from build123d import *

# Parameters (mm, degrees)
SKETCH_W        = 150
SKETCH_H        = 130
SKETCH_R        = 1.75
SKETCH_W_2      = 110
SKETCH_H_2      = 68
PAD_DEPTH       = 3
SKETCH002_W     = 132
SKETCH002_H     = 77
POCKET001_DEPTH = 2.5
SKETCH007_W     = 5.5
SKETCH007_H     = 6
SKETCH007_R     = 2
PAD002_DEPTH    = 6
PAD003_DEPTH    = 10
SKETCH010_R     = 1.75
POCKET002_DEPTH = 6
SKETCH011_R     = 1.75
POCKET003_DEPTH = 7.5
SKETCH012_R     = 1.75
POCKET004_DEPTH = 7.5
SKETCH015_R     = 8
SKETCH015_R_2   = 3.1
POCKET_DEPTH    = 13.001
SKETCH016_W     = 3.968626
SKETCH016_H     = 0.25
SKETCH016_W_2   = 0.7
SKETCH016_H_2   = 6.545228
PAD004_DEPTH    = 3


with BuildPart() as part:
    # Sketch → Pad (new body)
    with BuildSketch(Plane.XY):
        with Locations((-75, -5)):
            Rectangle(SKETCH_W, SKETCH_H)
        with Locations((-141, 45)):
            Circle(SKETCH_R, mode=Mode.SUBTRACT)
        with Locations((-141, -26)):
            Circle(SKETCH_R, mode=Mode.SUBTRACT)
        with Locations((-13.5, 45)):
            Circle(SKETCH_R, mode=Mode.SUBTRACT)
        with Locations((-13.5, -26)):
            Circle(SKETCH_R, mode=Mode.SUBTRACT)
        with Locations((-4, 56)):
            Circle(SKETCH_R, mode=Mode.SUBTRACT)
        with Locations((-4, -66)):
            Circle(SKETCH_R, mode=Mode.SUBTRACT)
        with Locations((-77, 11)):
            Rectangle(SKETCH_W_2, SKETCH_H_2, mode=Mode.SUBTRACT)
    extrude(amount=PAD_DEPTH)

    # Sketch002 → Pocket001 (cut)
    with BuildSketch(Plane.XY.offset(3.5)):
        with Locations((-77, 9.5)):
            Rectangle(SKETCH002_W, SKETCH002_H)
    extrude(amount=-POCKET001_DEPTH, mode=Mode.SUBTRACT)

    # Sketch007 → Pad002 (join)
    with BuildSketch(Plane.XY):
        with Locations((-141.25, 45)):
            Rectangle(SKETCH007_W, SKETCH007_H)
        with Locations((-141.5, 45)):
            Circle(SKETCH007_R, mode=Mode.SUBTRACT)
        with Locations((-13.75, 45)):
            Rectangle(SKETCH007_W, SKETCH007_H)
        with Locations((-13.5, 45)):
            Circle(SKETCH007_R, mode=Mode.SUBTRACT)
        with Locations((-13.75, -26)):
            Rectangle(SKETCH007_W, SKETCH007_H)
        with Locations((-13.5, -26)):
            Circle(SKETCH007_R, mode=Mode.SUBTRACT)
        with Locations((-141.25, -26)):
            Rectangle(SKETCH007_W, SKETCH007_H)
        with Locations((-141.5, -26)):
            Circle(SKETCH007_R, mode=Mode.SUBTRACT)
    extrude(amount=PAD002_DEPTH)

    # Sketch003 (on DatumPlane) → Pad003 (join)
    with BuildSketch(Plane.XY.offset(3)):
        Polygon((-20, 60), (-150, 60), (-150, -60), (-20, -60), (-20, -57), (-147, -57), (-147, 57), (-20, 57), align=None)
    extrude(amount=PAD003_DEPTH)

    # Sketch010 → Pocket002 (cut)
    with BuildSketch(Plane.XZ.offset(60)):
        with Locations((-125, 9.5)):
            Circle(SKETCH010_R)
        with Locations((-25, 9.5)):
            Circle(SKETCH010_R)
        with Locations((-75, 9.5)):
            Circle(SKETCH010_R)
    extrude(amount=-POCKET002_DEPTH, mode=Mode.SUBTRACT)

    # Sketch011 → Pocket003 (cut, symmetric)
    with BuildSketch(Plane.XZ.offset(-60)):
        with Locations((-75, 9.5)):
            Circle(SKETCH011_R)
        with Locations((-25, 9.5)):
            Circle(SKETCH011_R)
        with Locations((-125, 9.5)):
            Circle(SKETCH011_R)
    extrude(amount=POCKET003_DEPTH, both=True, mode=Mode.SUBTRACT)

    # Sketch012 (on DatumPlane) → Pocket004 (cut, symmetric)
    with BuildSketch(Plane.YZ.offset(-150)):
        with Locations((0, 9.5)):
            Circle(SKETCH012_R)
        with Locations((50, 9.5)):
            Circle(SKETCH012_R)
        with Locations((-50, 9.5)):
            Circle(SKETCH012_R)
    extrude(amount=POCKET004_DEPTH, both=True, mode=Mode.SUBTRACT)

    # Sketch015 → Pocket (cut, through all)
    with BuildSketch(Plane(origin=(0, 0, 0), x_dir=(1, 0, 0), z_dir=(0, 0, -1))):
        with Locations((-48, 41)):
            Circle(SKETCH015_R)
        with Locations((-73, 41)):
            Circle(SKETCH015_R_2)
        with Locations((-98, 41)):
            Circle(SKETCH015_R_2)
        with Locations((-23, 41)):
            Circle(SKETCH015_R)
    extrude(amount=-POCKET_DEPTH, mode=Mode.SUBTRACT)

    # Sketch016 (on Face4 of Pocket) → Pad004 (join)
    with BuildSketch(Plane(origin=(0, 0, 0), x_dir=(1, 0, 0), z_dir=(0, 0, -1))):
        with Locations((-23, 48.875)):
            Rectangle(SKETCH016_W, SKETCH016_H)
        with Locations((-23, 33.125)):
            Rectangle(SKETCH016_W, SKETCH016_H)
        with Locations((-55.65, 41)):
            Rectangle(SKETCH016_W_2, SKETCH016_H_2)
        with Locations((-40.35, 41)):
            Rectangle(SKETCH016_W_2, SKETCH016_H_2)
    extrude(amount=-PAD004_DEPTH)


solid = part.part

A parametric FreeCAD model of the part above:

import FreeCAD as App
import Part
import Sketcher

V = App.Vector

doc = App.newDocument("Part")
body = doc.addObject("PartDesign::Body", "Body")

# Sketch on XY plane
sketch1 = doc.addObject("Sketcher::SketchObject", "Sketch")
body.addObject(sketch1)
sketch1.AttachmentSupport = (doc.XY_Plane, [""])
sketch1.MapMode = "FlatFace"
sketch1.addGeometry([
    Part.LineSegment(V(-150, 60, 0), V(-150, -70, 0)),  # 0
    Part.LineSegment(V(-150, -70, 0), V(0, -70, 0)),  # 1
    Part.LineSegment(V(0, -70, 0), V(0, 60, 0)),  # 2
    Part.LineSegment(V(0, 60, 0), V(-150, 60, 0)),  # 3
    Part.Circle(V(-141, -26, 0), V(0, 0, 1), 1.8),  # 4
    Part.Circle(V(-4, -66, 0), V(0, 0, 1), 1.8),  # 5
    Part.Circle(V(-13.5, -26, 0), V(0, 0, 1), 1.8),  # 6
    Part.LineSegment(V(-22, -23, 0), V(-132, -23, 0)),  # 7
    Part.LineSegment(V(-132, -23, 0), V(-132, 45, 0)),  # 8
    Part.LineSegment(V(-132, 45, 0), V(-22, 45, 0)),  # 9
    Part.LineSegment(V(-22, 45, 0), V(-22, -23, 0)),  # 10
    Part.Circle(V(-141, 45, 0), V(0, 0, 1), 1.8),  # 11
    Part.Circle(V(-13.5, 45, 0), V(0, 0, 1), 1.8),  # 12
    Part.Circle(V(-4, 56, 0), V(0, 0, 1), 1.8),  # 13
], False)
sketch1.addConstraint([
    Sketcher.Constraint("Coincident", 0, 2, 1, 1),
    Sketcher.Constraint("Coincident", 1, 2, 2, 1),
    Sketcher.Constraint("Coincident", 2, 2, 3, 1),
    Sketcher.Constraint("Coincident", 3, 2, 0, 1),
    Sketcher.Constraint("Coincident", 7, 2, 8, 1),
    Sketcher.Constraint("Coincident", 8, 2, 9, 1),
    Sketcher.Constraint("Coincident", 9, 2, 10, 1),
    Sketcher.Constraint("Coincident", 10, 2, 7, 1),
    Sketcher.Constraint("Vertical", 0),
    Sketcher.Constraint("Horizontal", 1),
    Sketcher.Constraint("Vertical", 2),
    Sketcher.Constraint("Horizontal", 3),
    Sketcher.Constraint("Horizontal", 7),
    Sketcher.Constraint("Vertical", 8),
    Sketcher.Constraint("Horizontal", 9),
    Sketcher.Constraint("Vertical", 10),
    Sketcher.Constraint("Equal", 4, 5),
    Sketcher.Constraint("Equal", 5, 6),
    Sketcher.Constraint("Equal", 6, 11),
    Sketcher.Constraint("Equal", 11, 12),
    Sketcher.Constraint("Equal", 12, 13),
    Sketcher.Constraint("PointOnObject", 1, 2, -2),
    Sketcher.Constraint("Horizontal", 4, 3, 6, 3),
    Sketcher.Constraint("Horizontal", 11, 3, 12, 3),
    Sketcher.Constraint("Horizontal", 12, 3, 8, 2),
    Sketcher.Constraint("Vertical", 4, 3, 11, 3),
    Sketcher.Constraint("Vertical", 6, 3, 12, 3),
    Sketcher.Constraint("Vertical", 5, 3, 13, 3),
    Sketcher.Constraint("Diameter", 4, 3.5),
    Sketcher.Constraint("DistanceX", 1, 1, 1, 2, 150.0),
    Sketcher.Constraint("DistanceX", 7, 2, 7, 1, 110.0),
    Sketcher.Constraint("DistanceY", 0, 2, 0, 1, 130.0),
    Sketcher.Constraint("DistanceY", 8, 1, 8, 2, 68.0),
    Sketcher.Constraint("DistanceX", 4, 3, -1, 1, 141.0),
    Sketcher.Constraint("DistanceY", 4, 3, -1, 1, 26.0),
    Sketcher.Constraint("DistanceX", 5, 3, -1, 1, 4.0),
    Sketcher.Constraint("DistanceY", 5, 3, -1, 1, 66.0),
    Sketcher.Constraint("DistanceY", -1, 1, 11, 3, 45.0),
    Sketcher.Constraint("DistanceY", -1, 1, 13, 3, 56.0),
    Sketcher.Constraint("DistanceY", 0, 2, -1, 1, 70.0),
    Sketcher.Constraint("DistanceX", 7, 2, -1, 1, 132.0),
    Sketcher.Constraint("DistanceX", 6, 3, -1, 1, 13.5),
])
pad1 = doc.addObject("PartDesign::Pad", "Pad")
body.addObject(pad1)
pad1.Profile = sketch1
pad1.Length = 3

# Sketch on XY plane
sketch2 = doc.addObject("Sketcher::SketchObject", "Sketch001")
body.addObject(sketch2)
sketch2.AttachmentSupport = (doc.XY_Plane, [""])
sketch2.MapMode = "FlatFace"
sketch2.AttachmentOffset = App.Placement(V(0, 0, 3.5), App.Rotation())
sketch2.addGeometry([
    Part.LineSegment(V(-143, 48, 0), V(-143, -29, 0)),
    Part.LineSegment(V(-143, -29, 0), V(-11, -29, 0)),
    Part.LineSegment(V(-11, -29, 0), V(-11, 48, 0)),
    Part.LineSegment(V(-11, 48, 0), V(-143, 48, 0)),
], False)
sketch2.addConstraint([
    Sketcher.Constraint("Coincident", 0, 2, 1, 1),
    Sketcher.Constraint("Coincident", 1, 2, 2, 1),
    Sketcher.Constraint("Coincident", 2, 2, 3, 1),
    Sketcher.Constraint("Coincident", 3, 2, 0, 1),
    Sketcher.Constraint("Vertical", 0),
    Sketcher.Constraint("Horizontal", 1),
    Sketcher.Constraint("Vertical", 2),
    Sketcher.Constraint("Horizontal", 3),
    Sketcher.Constraint("DistanceX", 1, 1, 1, 2, 132.0),
    Sketcher.Constraint("DistanceY", 0, 2, 0, 1, 77.0),
    Sketcher.Constraint("DistanceX", 0, 2, -1, 1, 143.0),
    Sketcher.Constraint("DistanceY", 0, 2, -1, 1, 29.0),
])
pocket1 = doc.addObject("PartDesign::Pocket", "Pocket")
body.addObject(pocket1)
pocket1.Profile = sketch2
pocket1.Length = 2.5

# Sketch on XY plane
sketch3 = doc.addObject("Sketcher::SketchObject", "Sketch002")
body.addObject(sketch3)
sketch3.AttachmentSupport = (doc.XY_Plane, [""])
sketch3.MapMode = "FlatFace"
sketch3.addGeometry([
    Part.LineSegment(V(-144, 48, 0), V(-144, 42, 0)),  # 0
    Part.LineSegment(V(-144, 42, 0), V(-138.5, 42, 0)),  # 1
    Part.LineSegment(V(-138.5, 42, 0), V(-138.5, 48, 0)),  # 2
    Part.LineSegment(V(-138.5, 48, 0), V(-144, 48, 0)),  # 3
    Part.Circle(V(-141.5, 45, 0), V(0, 0, 1), 2),  # 4
    Part.LineSegment(V(-16.5, 48, 0), V(-16.5, 42, 0)),  # 5
    Part.LineSegment(V(-16.5, 42, 0), V(-11, 42, 0)),  # 6
    Part.LineSegment(V(-11, 42, 0), V(-11, 48, 0)),  # 7
    Part.LineSegment(V(-11, 48, 0), V(-16.5, 48, 0)),  # 8
    Part.Circle(V(-13.5, 45, 0), V(0, 0, 1), 2),  # 9
    Part.LineSegment(V(-16.5, -23, 0), V(-16.5, -29, 0)),  # 10
    Part.LineSegment(V(-16.5, -29, 0), V(-11, -29, 0)),  # 11
    Part.LineSegment(V(-11, -29, 0), V(-11, -23, 0)),  # 12
    Part.LineSegment(V(-11, -23, 0), V(-16.5, -23, 0)),  # 13
    Part.Circle(V(-13.5, -26, 0), V(0, 0, 1), 2),  # 14
    Part.LineSegment(V(-144, -23, 0), V(-144, -29, 0)),  # 15
    Part.LineSegment(V(-144, -29, 0), V(-138.5, -29, 0)),  # 16
    Part.LineSegment(V(-138.5, -29, 0), V(-138.5, -23, 0)),  # 17
    Part.LineSegment(V(-138.5, -23, 0), V(-144, -23, 0)),  # 18
    Part.Circle(V(-141.5, -26, 0), V(0, 0, 1), 2),  # 19
], False)
sketch3.addConstraint([
    Sketcher.Constraint("Coincident", 0, 2, 1, 1),
    Sketcher.Constraint("Coincident", 1, 2, 2, 1),
    Sketcher.Constraint("Coincident", 2, 2, 3, 1),
    Sketcher.Constraint("Coincident", 3, 2, 0, 1),
    Sketcher.Constraint("Coincident", 5, 2, 6, 1),
    Sketcher.Constraint("Coincident", 6, 2, 7, 1),
    Sketcher.Constraint("Coincident", 7, 2, 8, 1),
    Sketcher.Constraint("Coincident", 8, 2, 5, 1),
    Sketcher.Constraint("Coincident", 10, 2, 11, 1),
    Sketcher.Constraint("Coincident", 11, 2, 12, 1),
    Sketcher.Constraint("Coincident", 12, 2, 13, 1),
    Sketcher.Constraint("Coincident", 13, 2, 10, 1),
    Sketcher.Constraint("Coincident", 15, 2, 16, 1),
    Sketcher.Constraint("Coincident", 16, 2, 17, 1),
    Sketcher.Constraint("Coincident", 17, 2, 18, 1),
    Sketcher.Constraint("Coincident", 18, 2, 15, 1),
    Sketcher.Constraint("Vertical", 0),
    Sketcher.Constraint("Horizontal", 1),
    Sketcher.Constraint("Vertical", 2),
    Sketcher.Constraint("Horizontal", 3),
    Sketcher.Constraint("Vertical", 5),
    Sketcher.Constraint("Horizontal", 6),
    Sketcher.Constraint("Vertical", 7),
    Sketcher.Constraint("Horizontal", 8),
    Sketcher.Constraint("Vertical", 10),
    Sketcher.Constraint("Horizontal", 11),
    Sketcher.Constraint("Vertical", 12),
    Sketcher.Constraint("Horizontal", 13),
    Sketcher.Constraint("Vertical", 15),
    Sketcher.Constraint("Horizontal", 16),
    Sketcher.Constraint("Vertical", 17),
    Sketcher.Constraint("Horizontal", 18),
    Sketcher.Constraint("Equal", 4, 9),
    Sketcher.Constraint("Equal", 9, 14),
    Sketcher.Constraint("Equal", 14, 19),
    Sketcher.Constraint("Horizontal", 4, 3, 9, 3),
    Sketcher.Constraint("Horizontal", 14, 3, 19, 3),
    Sketcher.Constraint("Horizontal", 1, 2, 5, 2),
    Sketcher.Constraint("Horizontal", 3, 2, 7, 2),
    Sketcher.Constraint("Horizontal", 11, 2, 15, 2),
    Sketcher.Constraint("Horizontal", 13, 2, 17, 2),
    Sketcher.Constraint("Vertical", 9, 3, 14, 3),
    Sketcher.Constraint("Vertical", 4, 3, 19, 3),
    Sketcher.Constraint("Vertical", 8, 2, 10, 2),
    Sketcher.Constraint("Vertical", 7, 2, 11, 2),
    Sketcher.Constraint("Vertical", 3, 2, 15, 2),
    Sketcher.Constraint("Vertical", 2, 2, 16, 2),
    Sketcher.Constraint("Equal", 3, 6),
    Sketcher.Constraint("Equal", 7, 10),
    Sketcher.Constraint("Diameter", 4, 4.0),
    Sketcher.Constraint("DistanceY", 0, 2, 0, 1, 6.0),
    Sketcher.Constraint("DistanceX", 1, 1, 1, 2, 5.5),
    Sketcher.Constraint("DistanceY", -1, 1, 4, 3, 45.0),
    Sketcher.Constraint("DistanceY", 14, 3, -1, 1, 26.0),
    Sketcher.Constraint("DistanceX", 0, 2, -1, 1, 144.0),
    Sketcher.Constraint("DistanceY", -1, 1, 0, 2, 42.0),
    Sketcher.Constraint("DistanceX", 6, 2, -1, 1, 11.0),
    Sketcher.Constraint("DistanceY", 10, 2, -1, 1, 29.0),
    Sketcher.Constraint("DistanceX", 4, 3, 9, 3, 128.0),
    Sketcher.Constraint("DistanceX", 4, 3, 1, 2, 3.0),
])
pad2 = doc.addObject("PartDesign::Pad", "Pad001")
body.addObject(pad2)
pad2.Profile = sketch3
pad2.Length = 6

# Sketch on XY plane
sketch4 = doc.addObject("Sketcher::SketchObject", "Sketch003")
body.addObject(sketch4)
sketch4.AttachmentSupport = (doc.XY_Plane, [""])
sketch4.MapMode = "FlatFace"
sketch4.AttachmentOffset = App.Placement(V(0, 0, 3), App.Rotation())
sketch4.addGeometry([
    Part.LineSegment(V(-20, 60, 0), V(-150, 60, 0)),  # 0
    Part.LineSegment(V(-150, 60, 0), V(-150, -60, 0)),  # 1
    Part.LineSegment(V(-150, -60, 0), V(-20, -60, 0)),  # 2
    Part.LineSegment(V(-20, -60, 0), V(-20, -57, 0)),  # 3
    Part.LineSegment(V(-20, -57, 0), V(-147, -57, 0)),  # 4
    Part.LineSegment(V(-147, -57, 0), V(-147, 57, 0)),  # 5
    Part.LineSegment(V(-147, 57, 0), V(-20, 57, 0)),  # 6
    Part.LineSegment(V(-20, 57, 0), V(-20, 60, 0)),  # 7
], False)
sketch4.addConstraint([
    Sketcher.Constraint("Coincident", 0, 2, 1, 1),
    Sketcher.Constraint("Coincident", 1, 2, 2, 1),
    Sketcher.Constraint("Coincident", 2, 2, 3, 1),
    Sketcher.Constraint("Coincident", 3, 2, 4, 1),
    Sketcher.Constraint("Coincident", 4, 2, 5, 1),
    Sketcher.Constraint("Coincident", 5, 2, 6, 1),
    Sketcher.Constraint("Coincident", 6, 2, 7, 1),
    Sketcher.Constraint("Coincident", 7, 2, 0, 1),
    Sketcher.Constraint("Horizontal", 0),
    Sketcher.Constraint("Vertical", 1),
    Sketcher.Constraint("Horizontal", 2),
    Sketcher.Constraint("Vertical", 3),
    Sketcher.Constraint("Horizontal", 4),
    Sketcher.Constraint("Vertical", 5),
    Sketcher.Constraint("Horizontal", 6),
    Sketcher.Constraint("Vertical", 7),
    Sketcher.Constraint("Symmetric", 3, 2, 6, 2, -1),
    Sketcher.Constraint("Equal", 3, 7),
    Sketcher.Constraint("DistanceX", 0, 2, 0, 1, 130.0),
    Sketcher.Constraint("DistanceX", 4, 2, 4, 1, 127.0),
    Sketcher.Constraint("DistanceY", 1, 2, 1, 1, 120.0),
    Sketcher.Constraint("DistanceY", 3, 1, 3, 2, 3.0),
    Sketcher.Constraint("DistanceX", 0, 2, -1, 1, 150.0),
])
pad3 = doc.addObject("PartDesign::Pad", "Pad002")
body.addObject(pad3)
pad3.Profile = sketch4
pad3.Length = 10

# Sketch on XZ plane
sketch5 = doc.addObject("Sketcher::SketchObject", "Sketch004")
body.addObject(sketch5)
sketch5.AttachmentSupport = (doc.XZ_Plane, [""])
sketch5.MapMode = "FlatFace"
sketch5.AttachmentOffset = App.Placement(V(0, 0, 60), App.Rotation())
sketch5.addGeometry([
    Part.Circle(V(-125, 9.5, 0), V(0, 0, 1), 1.8),
    Part.Circle(V(-25, 9.5, 0), V(0, 0, 1), 1.8),
    Part.Circle(V(-75, 9.5, 0), V(0, 0, 1), 1.8),
], False)
sketch5.addConstraint([
    Sketcher.Constraint("Equal", 0, 1),
    Sketcher.Constraint("Equal", 1, 2),
    Sketcher.Constraint("Horizontal", 0, 3, 1, 3),
    Sketcher.Constraint("Horizontal", 1, 3, 2, 3),
    Sketcher.Constraint("Diameter", 0, 3.5),
    Sketcher.Constraint("DistanceX", 0, 3, -1, 1, 125.0),
    Sketcher.Constraint("DistanceX", 1, 3, -1, 1, 25.0),
    Sketcher.Constraint("DistanceX", 2, 3, -1, 1, 75.0),
    Sketcher.Constraint("DistanceY", -1, 1, 0, 3, 9.5),
])
pocket2 = doc.addObject("PartDesign::Pocket", "Pocket001")
body.addObject(pocket2)
pocket2.Profile = sketch5
pocket2.Length = 6

# Sketch on XZ plane
sketch6 = doc.addObject("Sketcher::SketchObject", "Sketch005")
body.addObject(sketch6)
sketch6.AttachmentSupport = (doc.XZ_Plane, [""])
sketch6.MapMode = "FlatFace"
sketch6.AttachmentOffset = App.Placement(V(0, 0, -60), App.Rotation())
sketch6.addGeometry([
    Part.Circle(V(-75, 9.5, 0), V(0, 0, 1), 1.8),
    Part.Circle(V(-25, 9.5, 0), V(0, 0, 1), 1.8),
    Part.Circle(V(-125, 9.5, 0), V(0, 0, 1), 1.8),
], False)
sketch6.addConstraint([
    Sketcher.Constraint("Equal", 0, 1),
    Sketcher.Constraint("Equal", 1, 2),
    Sketcher.Constraint("Horizontal", 0, 3, 1, 3),
    Sketcher.Constraint("Horizontal", 1, 3, 2, 3),
    Sketcher.Constraint("Diameter", 0, 3.5),
    Sketcher.Constraint("DistanceX", 0, 3, -1, 1, 75.0),
    Sketcher.Constraint("DistanceX", 1, 3, -1, 1, 25.0),
    Sketcher.Constraint("DistanceX", 2, 3, -1, 1, 125.0),
    Sketcher.Constraint("DistanceY", -1, 1, 0, 3, 9.5),
])
pocket3 = doc.addObject("PartDesign::Pocket", "Pocket002")
body.addObject(pocket3)
pocket3.Profile = sketch6
pocket3.Length = 15
pocket3.Midplane = True

# Sketch on YZ plane
sketch7 = doc.addObject("Sketcher::SketchObject", "Sketch006")
body.addObject(sketch7)
sketch7.AttachmentSupport = (doc.YZ_Plane, [""])
sketch7.MapMode = "FlatFace"
sketch7.AttachmentOffset = App.Placement(V(0, 0, -150), App.Rotation())
sketch7.addGeometry([
    Part.Circle(V(0, 9.5, 0), V(0, 0, 1), 1.8),
    Part.Circle(V(50, 9.5, 0), V(0, 0, 1), 1.8),
    Part.Circle(V(-50, 9.5, 0), V(0, 0, 1), 1.8),
], False)
sketch7.addConstraint([
    Sketcher.Constraint("Equal", 0, 1),
    Sketcher.Constraint("Equal", 1, 2),
    Sketcher.Constraint("Symmetric", 1, 3, 2, 3, -2),
    Sketcher.Constraint("PointOnObject", 0, 3, -2),
    Sketcher.Constraint("Horizontal", 0, 3, 1, 3),
    Sketcher.Constraint("Diameter", 0, 3.5),
    Sketcher.Constraint("DistanceX", -1, 1, 1, 3, 50.0),
    Sketcher.Constraint("DistanceY", -1, 1, 0, 3, 9.5),
])
pocket4 = doc.addObject("PartDesign::Pocket", "Pocket003")
body.addObject(pocket4)
pocket4.Profile = sketch7
pocket4.Length = 15
pocket4.Midplane = True

# Sketch on XY plane
sketch8 = doc.addObject("Sketcher::SketchObject", "Sketch007")
body.addObject(sketch8)
sketch8.AttachmentSupport = (doc.XY_Plane, [""])
sketch8.MapMode = "FlatFace"
sketch8.addGeometry([
    Part.Circle(V(-48, -41, 0), V(0, 0, 1), 8),
    Part.Circle(V(-73, -41, 0), V(0, 0, 1), 3.1),
    Part.Circle(V(-98, -41, 0), V(0, 0, 1), 3.1),
    Part.Circle(V(-23, -41, 0), V(0, 0, 1), 8),
], False)
sketch8.addConstraint([
    Sketcher.Constraint("Equal", 1, 2),
    Sketcher.Constraint("Equal", 0, 3),
    Sketcher.Constraint("Horizontal", 0, 3, 1, 3),
    Sketcher.Constraint("Horizontal", 1, 3, 2, 3),
    Sketcher.Constraint("Horizontal", 2, 3, 3, 3),
    Sketcher.Constraint("Diameter", 0, 16.0),
    Sketcher.Constraint("Diameter", 1, 6.2),
    Sketcher.Constraint("DistanceX", 0, 3, -1, 1, 48.0),
    Sketcher.Constraint("DistanceY", 0, 3, -1, 1, 41.0),
    Sketcher.Constraint("DistanceX", 1, 3, -1, 1, 73.0),
    Sketcher.Constraint("DistanceX", 2, 3, -1, 1, 98.0),
    Sketcher.Constraint("DistanceX", 3, 3, -1, 1, 23.0),
])
pocket5 = doc.addObject("PartDesign::Pocket", "Pocket004")
body.addObject(pocket5)
pocket5.Profile = sketch8
pocket5.Type = "ThroughAll"
pocket5.Reversed = True

# Sketch on XY plane
sketch9 = doc.addObject("Sketcher::SketchObject", "Sketch008")
body.addObject(sketch9)
sketch9.AttachmentSupport = (doc.XY_Plane, [""])
sketch9.MapMode = "FlatFace"
sketch9.addGeometry([
    Part.LineSegment(V(-24.98, -49, 0), V(-24.98, -48.75, 0)),  # 0
    Part.LineSegment(V(-24.98, -48.75, 0), V(-21.02, -48.75, 0)),  # 1
    Part.LineSegment(V(-21.02, -48.75, 0), V(-21.02, -49, 0)),  # 2
    Part.LineSegment(V(-21.02, -49, 0), V(-24.98, -49, 0)),  # 3
    Part.LineSegment(V(-24.98, -33.25, 0), V(-24.98, -33, 0)),  # 4
    Part.LineSegment(V(-24.98, -33, 0), V(-21.02, -33, 0)),  # 5
    Part.LineSegment(V(-21.02, -33, 0), V(-21.02, -33.25, 0)),  # 6
    Part.LineSegment(V(-21.02, -33.25, 0), V(-24.98, -33.25, 0)),  # 7
    Part.LineSegment(V(-56, -44.27, 0), V(-56, -37.73, 0)),  # 8
    Part.LineSegment(V(-56, -37.73, 0), V(-55.3, -37.73, 0)),  # 9
    Part.LineSegment(V(-55.3, -37.73, 0), V(-55.3, -44.27, 0)),  # 10
    Part.LineSegment(V(-55.3, -44.27, 0), V(-56, -44.27, 0)),  # 11
    Part.LineSegment(V(-40.7, -44.27, 0), V(-40.7, -37.73, 0)),  # 12
    Part.LineSegment(V(-40.7, -37.73, 0), V(-40, -37.73, 0)),  # 13
    Part.LineSegment(V(-40, -37.73, 0), V(-40, -44.27, 0)),  # 14
    Part.LineSegment(V(-40, -44.27, 0), V(-40.7, -44.27, 0)),  # 15
], False)
sketch9.addConstraint([
    Sketcher.Constraint("Coincident", 0, 2, 1, 1),
    Sketcher.Constraint("Coincident", 1, 2, 2, 1),
    Sketcher.Constraint("Coincident", 2, 2, 3, 1),
    Sketcher.Constraint("Coincident", 3, 2, 0, 1),
    Sketcher.Constraint("Coincident", 4, 2, 5, 1),
    Sketcher.Constraint("Coincident", 5, 2, 6, 1),
    Sketcher.Constraint("Coincident", 6, 2, 7, 1),
    Sketcher.Constraint("Coincident", 7, 2, 4, 1),
    Sketcher.Constraint("Coincident", 8, 2, 9, 1),
    Sketcher.Constraint("Coincident", 9, 2, 10, 1),
    Sketcher.Constraint("Coincident", 10, 2, 11, 1),
    Sketcher.Constraint("Coincident", 11, 2, 8, 1),
    Sketcher.Constraint("Coincident", 12, 2, 13, 1),
    Sketcher.Constraint("Coincident", 13, 2, 14, 1),
    Sketcher.Constraint("Coincident", 14, 2, 15, 1),
    Sketcher.Constraint("Coincident", 15, 2, 12, 1),
    Sketcher.Constraint("Vertical", 0),
    Sketcher.Constraint("Horizontal", 1),
    Sketcher.Constraint("Vertical", 2),
    Sketcher.Constraint("Horizontal", 3),
    Sketcher.Constraint("Vertical", 4),
    Sketcher.Constraint("Horizontal", 5),
    Sketcher.Constraint("Vertical", 6),
    Sketcher.Constraint("Horizontal", 7),
    Sketcher.Constraint("Vertical", 8),
    Sketcher.Constraint("Horizontal", 9),
    Sketcher.Constraint("Vertical", 10),
    Sketcher.Constraint("Horizontal", 11),
    Sketcher.Constraint("Vertical", 12),
    Sketcher.Constraint("Horizontal", 13),
    Sketcher.Constraint("Vertical", 14),
    Sketcher.Constraint("Horizontal", 15),
    Sketcher.Constraint("Horizontal", 9, 2, 12, 2),
    Sketcher.Constraint("Horizontal", 11, 2, 14, 2),
    Sketcher.Constraint("Vertical", 3, 2, 4, 2),
    Sketcher.Constraint("Vertical", 2, 2, 5, 2),
    Sketcher.Constraint("Equal", 11, 13),
    Sketcher.Constraint("Equal", 2, 4),
    Sketcher.Constraint("DistanceX", 9, 1, 9, 2, 0.7),
    Sketcher.Constraint("DistanceY", 2, 2, -1, 1, 49.0),
    Sketcher.Constraint("DistanceY", 4, 2, -1, 1, 33.0),
    Sketcher.Constraint("DistanceX", 8, 2, -1, 1, 56.0),
    Sketcher.Constraint("DistanceX", 13, 2, -1, 1, 40.0),
    Sketcher.Constraint("DistanceY", 0, 1, 0, 2, 0.25),
    Sketcher.Constraint("DistanceX", 1, 1, 1, 2, 3.968626),
    Sketcher.Constraint("DistanceY", 8, 1, 8, 2, 6.545228),
    Sketcher.Constraint("DistanceX", 0, 2, -1, 1, 24.984313),
    Sketcher.Constraint("DistanceY", 8, 2, -1, 1, 37.727386),
])
pad4 = doc.addObject("PartDesign::Pad", "Pad003")
body.addObject(pad4)
pad4.Profile = sketch9
pad4.Length = 3

doc.recompute()
